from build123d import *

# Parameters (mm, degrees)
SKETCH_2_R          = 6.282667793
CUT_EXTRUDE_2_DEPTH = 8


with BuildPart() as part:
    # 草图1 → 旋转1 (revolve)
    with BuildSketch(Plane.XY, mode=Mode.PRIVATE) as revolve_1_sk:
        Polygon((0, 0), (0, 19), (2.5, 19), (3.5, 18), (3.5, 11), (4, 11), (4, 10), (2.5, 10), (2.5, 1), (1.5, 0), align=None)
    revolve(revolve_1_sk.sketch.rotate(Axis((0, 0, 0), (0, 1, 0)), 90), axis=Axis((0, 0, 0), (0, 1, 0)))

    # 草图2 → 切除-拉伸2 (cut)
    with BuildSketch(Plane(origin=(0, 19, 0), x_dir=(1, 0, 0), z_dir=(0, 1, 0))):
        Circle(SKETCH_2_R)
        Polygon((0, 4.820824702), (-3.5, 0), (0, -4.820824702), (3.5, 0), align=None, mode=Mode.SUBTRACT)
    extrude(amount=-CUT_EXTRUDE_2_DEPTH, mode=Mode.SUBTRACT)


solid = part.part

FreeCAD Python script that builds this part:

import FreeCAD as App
import Part
import Sketcher

V = App.Vector
Q = App.Units.Quantity


def add_polygon(sketch, points):
    """Adds a closed chain of lines whose ends are joined by coincident constraints."""
    first, n = sketch.GeometryCount, len(points)
    for a, b in zip(points, points[1:] + points[:1]):
        sketch.addGeometry(Part.LineSegment(App.Vector(*a, 0), App.Vector(*b, 0)), False)
    for i in range(n):
        sketch.addConstraint(Sketcher.Constraint("Coincident", first + i, 2, first + (i + 1) % n, 1))

doc = App.newDocument("Part")
body = doc.addObject("PartDesign::Body", "Body")

sketch1 = body.newObject("Sketcher::SketchObject", "Sketch")
sketch1.AttachmentSupport = (doc.getObject("XY_Plane"), [""])
sketch1.MapMode = "FlatFace"
add_polygon(sketch1, [(0, 19), (0, 0), (1.5, 0), (2.5, 1), (2.5, 10), (4, 10), (4, 11), (3.5, 11), (3.5, 18), (2.5, 19)])
sketch1.addConstraint([
    Sketcher.Constraint("Vertical", 0),
    Sketcher.Constraint("Horizontal", 1),
    Sketcher.Constraint("Vertical", 3),
    Sketcher.Constraint("Horizontal", 4),
    Sketcher.Constraint("Vertical", 5),
    Sketcher.Constraint("Horizontal", 6),
    Sketcher.Constraint("Vertical", 7),
    Sketcher.Constraint("Horizontal", 9),
    Sketcher.Constraint("Coincident", 0, 2, -1, 1),
    Sketcher.Constraint("Perpendicular", 2, 8),
    Sketcher.Constraint("Vertical", 3, 2, 8, 2),
    Sketcher.Constraint("Equal", 1, 4),
    Sketcher.Constraint("Equal", 2, 8),
    Sketcher.Constraint("DistanceY", 0, 2, 0, 1, 19.0),
    Sketcher.Constraint("DistanceY", 3, 1, 3, 2, 9.0),
    Sketcher.Constraint("DistanceY", 5, 1, 5, 2, 1.0),
    Sketcher.Constraint("DistanceY", 7, 1, 7, 2, 7.0),
    Sketcher.Constraint("Angle", 2, Q("45 deg")),
    Sketcher.Constraint("DistanceX", 1, 1, 1, 2, 1.5),
])
revolution = body.newObject("PartDesign::Revolution", "Revolution")
revolution.Profile = sketch1
revolution.ReferenceAxis = (sketch1, ["V_Axis"])
revolution.Angle = 360

sketch2 = body.newObject("Sketcher::SketchObject", "Sketch001")
sketch2.AttachmentSupport = (doc.getObject("XZ_Plane"), [""])
sketch2.MapMode = "FlatFace"
sketch2.AttachmentOffset = App.Placement(V(0, 0, -19), App.Rotation())
sketch2.addGeometry(Part.Circle(V(0, 0, 0), V(0, 0, 1), 6), False)
add_polygon(sketch2, [(-4, 0), (0, -5), (4, 0), (0, 5)])
sketch2.addConstraint([
    Sketcher.Constraint("Coincident", 0, 3, -1, 1),
    Sketcher.Constraint("Symmetric", 1, 2, 3, 2, -1, 1),
    Sketcher.Constraint("Symmetric", 2, 2, 4, 2, -1, 1),
    Sketcher.Constraint("PointOnObject", 1, 2, -2),
    Sketcher.Constraint("PointOnObject", 2, 2, -1),
    Sketcher.Constraint("DistanceX", 4, 2, 2, 2, 7.0),
    Sketcher.Constraint("Diameter", 0, 12.565336),
    Sketcher.Constraint("DistanceY", 1, 2, 3, 2, 9.641649),
])
pocket1 = body.newObject("PartDesign::Pocket", "Pocket")
pocket1.Profile = sketch2
pocket1.Length = 8
pocket1.Reversed = True

doc.recompute()
